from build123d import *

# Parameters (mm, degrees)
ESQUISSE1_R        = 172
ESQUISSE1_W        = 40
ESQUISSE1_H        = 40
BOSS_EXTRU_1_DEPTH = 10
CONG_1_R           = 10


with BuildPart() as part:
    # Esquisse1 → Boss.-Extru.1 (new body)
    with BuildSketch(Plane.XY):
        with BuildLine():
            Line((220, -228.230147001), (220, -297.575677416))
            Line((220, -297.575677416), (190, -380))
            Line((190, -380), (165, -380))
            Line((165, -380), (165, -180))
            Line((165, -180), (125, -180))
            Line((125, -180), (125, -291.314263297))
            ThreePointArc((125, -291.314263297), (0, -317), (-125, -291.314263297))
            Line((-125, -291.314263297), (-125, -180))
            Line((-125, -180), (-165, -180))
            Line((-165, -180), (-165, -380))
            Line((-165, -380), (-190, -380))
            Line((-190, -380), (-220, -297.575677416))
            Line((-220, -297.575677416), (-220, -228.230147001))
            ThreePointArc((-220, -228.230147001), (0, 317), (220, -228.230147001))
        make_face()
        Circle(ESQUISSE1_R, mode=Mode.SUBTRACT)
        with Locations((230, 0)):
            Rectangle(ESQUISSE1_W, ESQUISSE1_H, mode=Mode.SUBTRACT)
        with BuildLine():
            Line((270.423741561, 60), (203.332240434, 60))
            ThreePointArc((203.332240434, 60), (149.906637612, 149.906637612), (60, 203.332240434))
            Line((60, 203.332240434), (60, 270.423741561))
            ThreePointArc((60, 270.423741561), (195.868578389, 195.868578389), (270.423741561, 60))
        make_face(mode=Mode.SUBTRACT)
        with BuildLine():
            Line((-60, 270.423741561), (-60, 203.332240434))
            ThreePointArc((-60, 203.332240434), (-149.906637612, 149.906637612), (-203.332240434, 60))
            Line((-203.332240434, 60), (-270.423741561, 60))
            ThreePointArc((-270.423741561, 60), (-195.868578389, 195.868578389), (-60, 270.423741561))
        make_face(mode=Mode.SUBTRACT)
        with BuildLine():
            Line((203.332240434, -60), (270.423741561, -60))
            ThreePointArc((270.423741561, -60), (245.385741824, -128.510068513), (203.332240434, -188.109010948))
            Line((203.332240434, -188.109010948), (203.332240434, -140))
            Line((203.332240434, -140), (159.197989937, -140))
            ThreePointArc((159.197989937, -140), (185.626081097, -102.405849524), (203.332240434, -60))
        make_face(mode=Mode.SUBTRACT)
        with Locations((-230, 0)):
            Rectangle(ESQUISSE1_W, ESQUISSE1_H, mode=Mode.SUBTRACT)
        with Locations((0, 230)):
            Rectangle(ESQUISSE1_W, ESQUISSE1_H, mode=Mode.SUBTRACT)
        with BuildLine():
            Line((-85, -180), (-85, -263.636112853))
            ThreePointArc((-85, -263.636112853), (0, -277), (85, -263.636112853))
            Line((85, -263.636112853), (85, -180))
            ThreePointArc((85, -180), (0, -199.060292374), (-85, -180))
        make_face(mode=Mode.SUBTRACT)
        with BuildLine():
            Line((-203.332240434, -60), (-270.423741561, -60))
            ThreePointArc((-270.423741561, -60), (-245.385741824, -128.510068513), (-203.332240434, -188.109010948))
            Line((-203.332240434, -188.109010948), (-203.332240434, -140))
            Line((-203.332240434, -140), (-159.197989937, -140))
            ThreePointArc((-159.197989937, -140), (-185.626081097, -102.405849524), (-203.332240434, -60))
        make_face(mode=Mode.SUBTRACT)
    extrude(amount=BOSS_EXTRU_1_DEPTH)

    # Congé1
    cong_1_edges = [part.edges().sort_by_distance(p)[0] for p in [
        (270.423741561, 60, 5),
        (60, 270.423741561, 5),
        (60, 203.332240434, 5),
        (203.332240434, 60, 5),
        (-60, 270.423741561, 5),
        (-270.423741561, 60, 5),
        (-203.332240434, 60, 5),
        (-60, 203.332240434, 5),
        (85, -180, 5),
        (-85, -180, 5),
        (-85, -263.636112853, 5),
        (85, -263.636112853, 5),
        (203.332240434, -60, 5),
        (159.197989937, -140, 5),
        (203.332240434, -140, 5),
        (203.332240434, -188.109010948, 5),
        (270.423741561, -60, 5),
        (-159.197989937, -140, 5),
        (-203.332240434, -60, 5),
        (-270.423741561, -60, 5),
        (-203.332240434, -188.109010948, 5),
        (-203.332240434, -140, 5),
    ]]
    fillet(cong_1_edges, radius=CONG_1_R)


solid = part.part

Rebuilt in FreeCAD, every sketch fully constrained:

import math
import FreeCAD as App
import Part
import Sketcher

V = App.Vector
Q = App.Units.Quantity


def edges_at(feature, points):
    """Names of the edges that pass closest to the given points."""
    edges = feature.Shape.Edges
    near = lambda p: min(range(len(edges)), key=lambda i: edges[i].distToShape(Part.Vertex(*p))[0])
    return sorted({f"Edge{near(p) + 1}" for p in points})

doc = App.newDocument("Part")
body = doc.addObject("PartDesign::Body", "Body")

sketch1 = doc.addObject("Sketcher::SketchObject", "Sketch")
body.addObject(sketch1)
sketch1.AttachmentSupport = (doc.XY_Plane, [""])
sketch1.MapMode = "FlatFace"
sketch1.addGeometry([
    Part.LineSegment(V(220, -298, 0), V(220, -228, 0)),
    Part.ArcOfCircle(Part.Circle(V(0, 0, 0), V(0, 0, 1), 317), math.radians(-46), math.radians(226)),
    Part.LineSegment(V(-220, -228, 0), V(-220, -298, 0)),
    Part.LineSegment(V(-220, -298, 0), V(-190, -380, 0)),
    Part.LineSegment(V(-190, -380, 0), V(-165, -380, 0)),
    Part.LineSegment(V(-165, -380, 0), V(-165, -180, 0)),
    Part.LineSegment(V(-165, -180, 0), V(-125, -180, 0)),
    Part.LineSegment(V(-125, -180, 0), V(-125, -291, 0)),
    Part.ArcOfCircle(Part.Circle(V(0, 0, 0), V(0, 0, 1), 317), math.radians(-113), math.radians(-67)),
    Part.LineSegment(V(125, -291, 0), V(125, -180, 0)),
    Part.LineSegment(V(125, -180, 0), V(165, -180, 0)),
    Part.LineSegment(V(165, -180, 0), V(165, -380, 0)),
    Part.LineSegment(V(165, -380, 0), V(190, -380, 0)),
    Part.LineSegment(V(190, -380, 0), V(220, -298, 0)),
    Part.LineSegment(V(203, -60, 0), V(270, -60, 0)),
    Part.ArcOfCircle(Part.Circle(V(0, 0, 0), V(0, 0, 1), 277), math.radians(-43), math.radians(-13)),
    Part.LineSegment(V(203, -188, 0), V(203, -140, 0)),
    Part.LineSegment(V(203, -140, 0), V(159, -140, 0)),
    Part.ArcOfCircle(Part.Circle(V(0, 0, 0), V(0, 0, 1), 212), math.radians(-41), math.radians(-16)),
    Part.ArcOfCircle(Part.Circle(V(0, 0, 0), V(0, 0, 1), 199), math.radians(-115), math.radians(-65)),
    Part.LineSegment(V(85, -180, 0), V(85, -264, 0)),
    Part.ArcOfCircle(Part.Circle(V(0, 0, 0), V(0, 0, 1), 277), math.radians(-108), math.radians(-72)),
    Part.LineSegment(V(-85, -264, 0), V(-85, -180, 0)),
    Part.ArcOfCircle(Part.Circle(V(0, 0, 0), V(0, 0, 1), 212), math.radians(-164), math.radians(-139)),
    Part.LineSegment(V(-159, -140, 0), V(-203, -140, 0)),
    Part.LineSegment(V(-203, -140, 0), V(-203, -188, 0)),
    Part.ArcOfCircle(Part.Circle(V(0, 0, 0), V(0, 0, 1), 277), math.radians(-167), math.radians(-137)),
    Part.LineSegment(V(-270, -60, 0), V(-203, -60, 0)),
    Part.LineSegment(V(210, -20, 0), V(210, 20, 0)),
    Part.LineSegment(V(210, 20, 0), V(250, 20, 0)),
    Part.LineSegment(V(250, 20, 0), V(250, -20, 0)),
    Part.LineSegment(V(250, -20, 0), V(210, -20, 0)),
    Part.LineSegment(V(270, 60, 0), V(203, 60, 0)),
    Part.ArcOfCircle(Part.Circle(V(0, 0, 0), V(0, 0, 1), 212), math.radians(16), math.radians(74)),
    Part.LineSegment(V(60, 203, 0), V(60, 270, 0)),
    Part.ArcOfCircle(Part.Circle(V(0, 0, 0), V(0, 0, 1), 277), math.radians(13), math.radians(77)),
    Part.Circle(V(0, 0, 0), V(0, 0, 1), 172),
    Part.LineSegment(V(-250, -20, 0), V(-250, 20, 0)),
    Part.LineSegment(V(-250, 20, 0), V(-210, 20, 0)),
    Part.LineSegment(V(-210, 20, 0), V(-210, -20, 0)),
    Part.LineSegment(V(-210, -20, 0), V(-250, -20, 0)),
    Part.LineSegment(V(-20, 210, 0), V(-20, 250, 0)),
    Part.LineSegment(V(-20, 250, 0), V(20, 250, 0)),
    Part.LineSegment(V(20, 250, 0), V(20, 210, 0)),
    Part.LineSegment(V(20, 210, 0), V(-20, 210, 0)),
    Part.LineSegment(V(-60, 270, 0), V(-60, 203, 0)),
    Part.ArcOfCircle(Part.Circle(V(0, 0, 0), V(0, 0, 1), 212), math.radians(106), math.radians(164)),
    Part.LineSegment(V(-203, 60, 0), V(-270, 60, 0)),
    Part.ArcOfCircle(Part.Circle(V(0, 0, 0), V(0, 0, 1), 277), math.radians(103), math.radians(167)),
], False)
sketch1.addConstraint([
    Sketcher.Constraint("Coincident", 0, 2, 1, 1),
    Sketcher.Constraint("Coincident", 1, 2, 2, 1),
    Sketcher.Constraint("Coincident", 2, 2, 3, 1),
    Sketcher.Constraint("Coincident", 3, 2, 4, 1),
    Sketcher.Constraint("Coincident", 4, 2, 5, 1),
    Sketcher.Constraint("Coincident", 5, 2, 6, 1),
    Sketcher.Constraint("Coincident", 6, 2, 7, 1),
    Sketcher.Constraint("Coincident", 7, 2, 8, 1),
    Sketcher.Constraint("Coincident", 8, 2, 9, 1),
    Sketcher.Constraint("Coincident", 9, 2, 10, 1),
    Sketcher.Constraint("Coincident", 10, 2, 11, 1),
    Sketcher.Constraint("Coincident", 11, 2, 12, 1),
    Sketcher.Constraint("Coincident", 12, 2, 13, 1),
    Sketcher.Constraint("Coincident", 13, 2, 0, 1),
    Sketcher.Constraint("Coincident", 14, 2, 15, 2),
    Sketcher.Constraint("Coincident", 15, 1, 16, 1),
    Sketcher.Constraint("Coincident", 16, 2, 17, 1),
    Sketcher.Constraint("Coincident", 17, 2, 18, 1),
    Sketcher.Constraint("Coincident", 18, 2, 14, 1),
    Sketcher.Constraint("Coincident", 19, 2, 20, 1),
    Sketcher.Constraint("Coincident", 20, 2, 21, 2),
    Sketcher.Constraint("Coincident", 21, 1, 22, 1),
    Sketcher.Constraint("Coincident", 22, 2, 19, 1),
    Sketcher.Constraint("Coincident", 23, 2, 24, 1),
    Sketcher.Constraint("Coincident", 24, 2, 25, 1),
    Sketcher.Constraint("Coincident", 25, 2, 26, 2),
    Sketcher.Constraint("Coincident", 26, 1, 27, 1),
    Sketcher.Constraint("Coincident", 27, 2, 23, 1),
    Sketcher.Constraint("Coincident", 28, 2, 29, 1),
    Sketcher.Constraint("Coincident", 29, 2, 30, 1),
    Sketcher.Constraint("Coincident", 30, 2, 31, 1),
    Sketcher.Constraint("Coincident", 31, 2, 28, 1),
    Sketcher.Constraint("Coincident", 32, 2, 33, 1),
    Sketcher.Constraint("Coincident", 33, 2, 34, 1),
    Sketcher.Constraint("Coincident", 34, 2, 35, 2),
    Sketcher.Constraint("Coincident", 35, 1, 32, 1),
    Sketcher.Constraint("Coincident", 37, 2, 38, 1),
    Sketcher.Constraint("Coincident", 38, 2, 39, 1),
    Sketcher.Constraint("Coincident", 39, 2, 40, 1),
    Sketcher.Constraint("Coincident", 40, 2, 37, 1),
    Sketcher.Constraint("Coincident", 41, 2, 42, 1),
    Sketcher.Constraint("Coincident", 42, 2, 43, 1),
    Sketcher.Constraint("Coincident", 43, 2, 44, 1),
    Sketcher.Constraint("Coincident", 44, 2, 41, 1),
    Sketcher.Constraint("Coincident", 45, 2, 46, 1),
    Sketcher.Constraint("Coincident", 46, 2, 47, 1),
    Sketcher.Constraint("Coincident", 47, 2, 48, 2),
    Sketcher.Constraint("Coincident", 48, 1, 45, 1),
    Sketcher.Constraint("Vertical", 0),
    Sketcher.Constraint("Vertical", 2),
    Sketcher.Constraint("Horizontal", 4),
    Sketcher.Constraint("Vertical", 5),
    Sketcher.Constraint("Horizontal", 6),
    Sketcher.Constraint("Vertical", 7),
    Sketcher.Constraint("Vertical", 9),
    Sketcher.Constraint("Horizontal", 10),
    Sketcher.Constraint("Vertical", 11),
    Sketcher.Constraint("Horizontal", 12),
    Sketcher.Constraint("Horizontal", 14),
    Sketcher.Constraint("Vertical", 16),
    Sketcher.Constraint("Horizontal", 17),
    Sketcher.Constraint("Vertical", 20),
    Sketcher.Constraint("Vertical", 22),
    Sketcher.Constraint("Horizontal", 24),
    Sketcher.Constraint("Vertical", 25),
    Sketcher.Constraint("Horizontal", 27),
    Sketcher.Constraint("Vertical", 28),
    Sketcher.Constraint("Horizontal", 29),
    Sketcher.Constraint("Vertical", 30),
    Sketcher.Constraint("Horizontal", 31),
    Sketcher.Constraint("Horizontal", 32),
    Sketcher.Constraint("Vertical", 34),
    Sketcher.Constraint("Vertical", 37),
    Sketcher.Constraint("Horizontal", 38),
    Sketcher.Constraint("Vertical", 39),
    Sketcher.Constraint("Horizontal", 40),
    Sketcher.Constraint("Vertical", 41),
    Sketcher.Constraint("Horizontal", 42),
    Sketcher.Constraint("Vertical", 43),
    Sketcher.Constraint("Horizontal", 44),
    Sketcher.Constraint("Vertical", 45),
    Sketcher.Constraint("Horizontal", 47),
    Sketcher.Constraint("Coincident", 1, 3, -1, 1),
    Sketcher.Constraint("Coincident", 8, 3, -1, 1),
    Sketcher.Constraint("Coincident", 15, 3, -1, 1),
    Sketcher.Constraint("Coincident", 18, 3, -1, 1),
    Sketcher.Constraint("Coincident", 19, 3, -1, 1),
    Sketcher.Constraint("Coincident", 21, 3, -1, 1),
    Sketcher.Constraint("Coincident", 23, 3, -1, 1),
    Sketcher.Constraint("Coincident", 26, 3, -1, 1),
    Sketcher.Constraint("Coincident", 33, 3, -1, 1),
    Sketcher.Constraint("Coincident", 35, 3, -1, 1),
    Sketcher.Constraint("Coincident", 36, 3, -1, 1),
    Sketcher.Constraint("Coincident", 46, 3, -1, 1),
    Sketcher.Constraint("Coincident", 48, 3, -1, 1),
    Sketcher.Constraint("Equal", 1, 8),
    Sketcher.Constraint("Equal", 15, 21),
    Sketcher.Constraint("Equal", 18, 23),
    Sketcher.Constraint("Equal", 21, 26),
    Sketcher.Constraint("Equal", 23, 33),
    Sketcher.Constraint("Equal", 26, 35),
    Sketcher.Constraint("Equal", 33, 46),
    Sketcher.Constraint("Equal", 35, 48),
    Sketcher.Constraint("Symmetric", 30, 2, 37, 2, -1, 1),
    Sketcher.Constraint("Symmetric", 28, 2, 39, 2, -1, 1),
    Sketcher.Constraint("Symmetric", 6, 2, 9, 2, -2),
    Sketcher.Constraint("Symmetric", 4, 2, 11, 2, -2),
    Sketcher.Constraint("Symmetric", 2, 2, 13, 2, -2),
    Sketcher.Constraint("Symmetric", 16, 2, 24, 2, -2),
    Sketcher.Constraint("Horizontal", 10, 2, 19, 2),
    Sketcher.Constraint("Horizontal", 20, 2, 21, 1),
    Sketcher.Constraint("Horizontal", 18, 2, 26, 1),
    Sketcher.Constraint("Horizontal", 29, 2, 37, 2),
    Sketcher.Constraint("Horizontal", 33, 2, 45, 2),
    Sketcher.Constraint("Horizontal", 35, 1, 46, 2),
    Sketcher.Constraint("Vertical", 16, 2, 18, 2),
    Sketcher.Constraint("Vertical", 18, 2, 32, 2),
    Sketcher.Constraint("Equal", 4, 12),
    Sketcher.Constraint("Equal", 10, 29),
    Sketcher.Constraint("Equal", 40, 42),
    Sketcher.Constraint("Equal", 44, 28),
    Sketcher.Constraint("Equal", 47, 34),
    Sketcher.Constraint("Equal", 39, 41),
    Sketcher.Constraint("Diameter", 36, Q("344 mm")),
    Sketcher.Constraint("Radius", 1, Q("317 mm")),
    Sketcher.Constraint("Radius", 15, Q("277 mm")),
    Sketcher.Constraint("Radius", 18, Q("212 mm")),
    Sketcher.Constraint("DistanceX", 4, 1, 4, 2, Q("25 mm")),
    Sketcher.Constraint("DistanceX", 6, 1, 6, 2, Q("40 mm")),
    Sketcher.Constraint("DistanceY", 5, 1, 5, 2, Q("200 mm")),
    Sketcher.Constraint("Angle", 3, Q("-70 deg")),
    Sketcher.Constraint("DistanceX", -1, 1, 0, 2, Q("220 mm")),
    Sketcher.Constraint("DistanceX", 3, 2, -1, 1, Q("190 mm")),
    Sketcher.Constraint("DistanceY", 3, 2, -1, 1, Q("380 mm")),
    Sketcher.Constraint("DistanceY", 14, 2, -1, 1, Q("60 mm")),
    Sketcher.Constraint("DistanceY", 16, 2, -1, 1, Q("140 mm")),
    Sketcher.Constraint("DistanceX", -1, 1, 19, 2, Q("85 mm")),
    Sketcher.Constraint("DistanceX", -1, 1, 28, 2, Q("210 mm")),
    Sketcher.Constraint("DistanceX", 41, 2, -1, 1, Q("20 mm")),
    Sketcher.Constraint("DistanceY", -1, 1, 41, 2, Q("250 mm")),
])
pad1 = doc.addObject("PartDesign::Pad", "Pad")
body.addObject(pad1)
pad1.Profile = sketch1
pad1.Length = 10
doc.recompute()

fillet = doc.addObject("PartDesign::Fillet", "Fillet")
body.addObject(fillet)
fillet.Base = (pad1, edges_at(pad1, [
    (270.424, 60, 5),
    (60, 270.424, 5),
    (60, 203.332, 5),
    (203.332, 60, 5),
    (-60, 270.424, 5),
    (-270.424, 60, 5),
    (-203.332, 60, 5),
    (-60, 203.332, 5),
    (85, -180, 5),
    (-85, -180, 5),
    (-85, -263.636, 5),
    (85, -263.636, 5),
    (203.332, -60, 5),
    (159.198, -140, 5),
    (203.332, -140, 5),
    (203.332, -188.109, 5),
    (270.424, -60, 5),
    (-159.198, -140, 5),
    (-203.332, -60, 5),
    (-270.424, -60, 5),
    (-203.332, -188.109, 5),
    (-203.332, -140, 5),
]))
fillet.Radius = 10

doc.recompute()
